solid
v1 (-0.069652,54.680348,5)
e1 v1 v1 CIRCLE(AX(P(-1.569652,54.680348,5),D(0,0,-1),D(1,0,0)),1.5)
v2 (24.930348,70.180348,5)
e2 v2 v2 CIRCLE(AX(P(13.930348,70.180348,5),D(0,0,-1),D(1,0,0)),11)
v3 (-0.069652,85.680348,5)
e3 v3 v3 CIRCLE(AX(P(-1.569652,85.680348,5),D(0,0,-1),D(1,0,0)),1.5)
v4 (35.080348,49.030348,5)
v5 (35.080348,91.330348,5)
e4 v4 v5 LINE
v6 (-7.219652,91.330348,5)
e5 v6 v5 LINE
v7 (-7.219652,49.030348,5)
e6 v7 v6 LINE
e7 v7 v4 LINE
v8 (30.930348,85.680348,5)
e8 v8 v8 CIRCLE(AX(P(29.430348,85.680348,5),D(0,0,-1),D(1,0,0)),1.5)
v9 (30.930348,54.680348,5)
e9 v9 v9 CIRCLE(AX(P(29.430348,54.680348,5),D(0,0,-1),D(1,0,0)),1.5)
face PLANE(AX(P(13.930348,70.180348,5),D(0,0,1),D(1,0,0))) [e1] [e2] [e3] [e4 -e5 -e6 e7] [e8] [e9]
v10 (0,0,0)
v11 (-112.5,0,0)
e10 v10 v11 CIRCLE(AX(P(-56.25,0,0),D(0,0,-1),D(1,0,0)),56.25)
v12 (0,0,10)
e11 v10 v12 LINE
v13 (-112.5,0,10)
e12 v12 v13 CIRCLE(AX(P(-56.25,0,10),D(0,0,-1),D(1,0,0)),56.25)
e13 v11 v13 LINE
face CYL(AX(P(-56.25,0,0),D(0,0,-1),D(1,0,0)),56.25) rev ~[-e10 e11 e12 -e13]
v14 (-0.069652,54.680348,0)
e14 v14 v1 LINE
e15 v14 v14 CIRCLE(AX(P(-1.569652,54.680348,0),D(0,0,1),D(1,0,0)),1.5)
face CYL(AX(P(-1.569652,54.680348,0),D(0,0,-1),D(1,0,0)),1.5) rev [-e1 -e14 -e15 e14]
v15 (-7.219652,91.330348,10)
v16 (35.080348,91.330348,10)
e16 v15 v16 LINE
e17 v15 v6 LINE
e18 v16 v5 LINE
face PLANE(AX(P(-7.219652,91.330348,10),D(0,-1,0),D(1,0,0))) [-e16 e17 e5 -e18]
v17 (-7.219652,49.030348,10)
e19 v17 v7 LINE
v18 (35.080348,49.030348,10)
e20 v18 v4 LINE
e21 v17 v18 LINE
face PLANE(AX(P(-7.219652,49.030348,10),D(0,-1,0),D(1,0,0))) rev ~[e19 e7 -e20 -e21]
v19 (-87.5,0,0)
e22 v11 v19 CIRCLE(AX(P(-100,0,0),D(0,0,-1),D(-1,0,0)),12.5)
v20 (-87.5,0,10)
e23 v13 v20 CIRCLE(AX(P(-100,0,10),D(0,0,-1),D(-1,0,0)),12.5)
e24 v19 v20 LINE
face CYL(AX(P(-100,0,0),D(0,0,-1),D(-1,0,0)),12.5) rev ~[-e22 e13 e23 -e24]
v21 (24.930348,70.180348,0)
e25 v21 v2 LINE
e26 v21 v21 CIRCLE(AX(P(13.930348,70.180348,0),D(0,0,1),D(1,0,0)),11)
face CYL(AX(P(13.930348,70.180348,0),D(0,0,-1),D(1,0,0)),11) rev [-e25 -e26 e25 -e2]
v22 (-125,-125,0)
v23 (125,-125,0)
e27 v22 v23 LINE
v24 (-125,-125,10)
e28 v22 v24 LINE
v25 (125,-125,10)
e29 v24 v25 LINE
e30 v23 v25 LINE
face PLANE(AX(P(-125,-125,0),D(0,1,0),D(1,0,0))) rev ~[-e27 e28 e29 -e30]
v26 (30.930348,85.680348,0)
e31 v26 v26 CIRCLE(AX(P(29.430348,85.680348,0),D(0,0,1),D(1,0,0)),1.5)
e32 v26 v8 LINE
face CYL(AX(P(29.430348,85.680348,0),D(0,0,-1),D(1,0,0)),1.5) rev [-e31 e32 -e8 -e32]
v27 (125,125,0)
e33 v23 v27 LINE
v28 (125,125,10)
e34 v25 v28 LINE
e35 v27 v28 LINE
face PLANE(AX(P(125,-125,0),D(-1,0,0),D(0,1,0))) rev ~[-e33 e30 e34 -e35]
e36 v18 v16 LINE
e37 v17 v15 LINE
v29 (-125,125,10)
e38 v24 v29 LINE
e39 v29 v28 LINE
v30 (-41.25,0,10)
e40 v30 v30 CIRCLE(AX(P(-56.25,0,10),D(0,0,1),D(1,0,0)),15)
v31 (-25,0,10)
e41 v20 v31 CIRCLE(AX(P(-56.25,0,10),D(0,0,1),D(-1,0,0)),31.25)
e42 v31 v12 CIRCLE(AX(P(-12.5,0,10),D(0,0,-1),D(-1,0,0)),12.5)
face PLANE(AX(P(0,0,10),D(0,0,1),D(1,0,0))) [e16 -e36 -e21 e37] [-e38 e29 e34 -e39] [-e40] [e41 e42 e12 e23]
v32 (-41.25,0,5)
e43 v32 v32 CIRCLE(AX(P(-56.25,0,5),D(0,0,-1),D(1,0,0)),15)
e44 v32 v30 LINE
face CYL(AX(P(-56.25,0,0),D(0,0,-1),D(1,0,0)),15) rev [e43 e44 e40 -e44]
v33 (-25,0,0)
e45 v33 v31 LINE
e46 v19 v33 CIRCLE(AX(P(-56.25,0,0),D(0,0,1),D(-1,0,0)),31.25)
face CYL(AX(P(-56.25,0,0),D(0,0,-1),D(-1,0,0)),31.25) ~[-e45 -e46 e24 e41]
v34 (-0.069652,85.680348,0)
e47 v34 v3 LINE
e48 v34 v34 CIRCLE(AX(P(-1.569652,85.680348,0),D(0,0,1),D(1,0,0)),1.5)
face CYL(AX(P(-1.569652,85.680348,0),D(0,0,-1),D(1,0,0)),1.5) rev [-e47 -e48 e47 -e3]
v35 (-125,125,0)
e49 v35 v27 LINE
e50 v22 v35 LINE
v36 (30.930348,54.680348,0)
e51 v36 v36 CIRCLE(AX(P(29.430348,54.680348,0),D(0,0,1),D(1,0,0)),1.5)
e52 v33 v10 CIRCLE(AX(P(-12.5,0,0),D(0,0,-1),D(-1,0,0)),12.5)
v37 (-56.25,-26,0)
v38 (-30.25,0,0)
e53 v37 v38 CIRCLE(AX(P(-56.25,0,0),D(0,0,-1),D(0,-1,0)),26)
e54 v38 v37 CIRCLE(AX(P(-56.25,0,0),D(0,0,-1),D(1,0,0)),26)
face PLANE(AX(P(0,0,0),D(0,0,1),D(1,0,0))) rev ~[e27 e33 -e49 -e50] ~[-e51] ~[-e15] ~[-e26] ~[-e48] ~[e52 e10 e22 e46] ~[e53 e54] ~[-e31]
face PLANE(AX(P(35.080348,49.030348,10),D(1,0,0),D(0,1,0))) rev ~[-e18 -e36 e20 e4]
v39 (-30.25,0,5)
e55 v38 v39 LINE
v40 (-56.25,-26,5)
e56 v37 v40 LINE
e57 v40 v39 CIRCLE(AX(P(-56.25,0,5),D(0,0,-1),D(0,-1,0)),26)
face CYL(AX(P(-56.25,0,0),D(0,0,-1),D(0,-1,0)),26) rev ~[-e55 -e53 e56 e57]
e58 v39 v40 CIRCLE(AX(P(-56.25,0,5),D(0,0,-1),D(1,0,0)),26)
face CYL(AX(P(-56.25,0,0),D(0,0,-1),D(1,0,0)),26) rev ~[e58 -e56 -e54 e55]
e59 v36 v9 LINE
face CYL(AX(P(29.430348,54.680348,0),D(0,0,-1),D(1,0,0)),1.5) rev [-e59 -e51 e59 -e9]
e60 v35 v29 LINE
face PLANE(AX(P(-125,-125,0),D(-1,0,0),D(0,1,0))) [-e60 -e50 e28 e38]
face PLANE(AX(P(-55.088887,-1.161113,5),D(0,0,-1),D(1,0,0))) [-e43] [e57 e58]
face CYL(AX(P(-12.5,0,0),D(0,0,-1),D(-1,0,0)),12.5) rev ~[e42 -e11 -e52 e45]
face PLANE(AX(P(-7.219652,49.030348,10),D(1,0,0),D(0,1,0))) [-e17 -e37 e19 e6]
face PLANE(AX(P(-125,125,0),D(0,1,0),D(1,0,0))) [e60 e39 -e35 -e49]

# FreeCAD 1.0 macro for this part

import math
import FreeCAD as App
import Part
import Sketcher
from FreeCAD import Vector

doc = App.newDocument("Part")
body = doc.addObject("PartDesign::Body", "Body")

# Sketch on XY plane
sketch1 = body.newObject("Sketcher::SketchObject", "Sketch")
sketch1.AttachmentSupport = (doc.getObject("XY_Plane"), [""])
sketch1.MapMode = "FlatFace"
sketch1.addGeometry([
    Part.LineSegment(Vector(-125, 125, 0), Vector(-125, -125, 0)),  # 0
    Part.LineSegment(Vector(-125, -125, 0), Vector(125, -125, 0)),  # 1
    Part.LineSegment(Vector(125, -125, 0), Vector(125, 125, 0)),  # 2
    Part.LineSegment(Vector(125, 125, 0), Vector(-125, 125, 0)),  # 3
    Part.ArcOfCircle(Part.Circle(Vector(-12.5, 0, 0), Vector(0, 0, 1), 12.5), math.radians(0), math.radians(180)),  # 4
    Part.ArcOfCircle(Part.Circle(Vector(-56.2, 0, 0), Vector(0, 0, 1), 56.2), math.radians(180), math.radians(360)),  # 5
    Part.ArcOfCircle(Part.Circle(Vector(-100, 0, 0), Vector(0, 0, 1), 12.5), math.radians(0), math.radians(180)),  # 6
    Part.ArcOfCircle(Part.Circle(Vector(-56.2, 0, 0), Vector(0, 0, 1), 31.2), math.radians(180), math.radians(360)),  # 7
    Part.Circle(Vector(-56.2, 0, 0), Vector(0, 0, 1), 15),  # 8
    Part.Circle(Vector(-1.6, 54.7, 0), Vector(0, 0, 1), 1.5),  # 9
    Part.Circle(Vector(29.4, 54.7, 0), Vector(0, 0, 1), 1.5),  # 10
    Part.Circle(Vector(-1.6, 85.7, 0), Vector(0, 0, 1), 1.5),  # 11
    Part.Circle(Vector(13.9, 70.2, 0), Vector(0, 0, 1), 11),  # 12
    Part.Circle(Vector(29.4, 85.7, 0), Vector(0, 0, 1), 1.5),  # 13
], False)
sketch1.addConstraint([
    Sketcher.Constraint("Coincident", 0, 2, 1, 1),
    Sketcher.Constraint("Coincident", 1, 2, 2, 1),
    Sketcher.Constraint("Coincident", 2, 2, 3, 1),
    Sketcher.Constraint("Coincident", 3, 2, 0, 1),
    Sketcher.Constraint("Tangent", 4, 1, 5, 2),
    Sketcher.Constraint("Tangent", 5, 1, 6, 2),
    Sketcher.Constraint("Tangent", 6, 1, 7, 1),
    Sketcher.Constraint("Tangent", 7, 2, 4, 2),
    Sketcher.Constraint("Vertical", 0),
    Sketcher.Constraint("Horizontal", 1),
    Sketcher.Constraint("Vertical", 2),
    Sketcher.Constraint("Horizontal", 3),
    Sketcher.Constraint("Coincident", 4, 1, -1, 1),
    Sketcher.Constraint("Coincident", 7, 3, 5, 3),
    Sketcher.Constraint("Coincident", 8, 3, 5, 3),
    Sketcher.Constraint("Equal", 9, 10),
    Sketcher.Constraint("Equal", 10, 11),
    Sketcher.Constraint("Equal", 11, 13),
    Sketcher.Constraint("Symmetric", 0, 2, 2, 2, -1, 1),
    Sketcher.Constraint("PointOnObject", 4, 3, -1),
    Sketcher.Constraint("PointOnObject", 6, 3, -1),
    Sketcher.Constraint("Horizontal", 9, 3, 10, 3),
    Sketcher.Constraint("Horizontal", 11, 3, 13, 3),
    Sketcher.Constraint("Vertical", 9, 3, 11, 3),
    Sketcher.Constraint("Vertical", 10, 3, 13, 3),
    Sketcher.Constraint("Equal", 3, 0),
    Sketcher.Constraint("Diameter", 8, 30.0),
    Sketcher.Constraint("Diameter", 9, 3.0),
    Sketcher.Constraint("Diameter", 12, 22.0),
    Sketcher.Constraint("Radius", 4, 12.5),
    Sketcher.Constraint("DistanceX", 1, 1, 1, 2, 250.0),
    Sketcher.Constraint("Radius", 5, 56.25),
    Sketcher.Constraint("DistanceX", 9, 3, 10, 3, 31.0),
    Sketcher.Constraint("DistanceY", 9, 3, 11, 3, 31.0),
    Sketcher.Constraint("DistanceX", 9, 3, 12, 3, 15.5),
    Sketcher.Constraint("DistanceY", 9, 3, 12, 3, 15.5),
    Sketcher.Constraint("DistanceX", 9, 3, -1, 1, 1.569652),
    Sketcher.Constraint("DistanceY", -1, 1, 9, 3, 54.680348),
])
pad1 = body.newObject("PartDesign::Pad", "Pad")
pad1.Profile = sketch1
pad1.Length = 10

# Sketch on XY plane
sketch2 = body.newObject("Sketcher::SketchObject", "Sketch001")
sketch2.AttachmentSupport = (doc.getObject("XY_Plane"), [""])
sketch2.MapMode = "FlatFace"
sketch2.AttachmentOffset = App.Placement(Vector(0, 0, 10), App.Rotation())
sketch2.addGeometry([
    Part.LineSegment(Vector(-7, 91, 0), Vector(-7, 49, 0)),
    Part.LineSegment(Vector(-7, 49, 0), Vector(35, 49, 0)),
    Part.LineSegment(Vector(35, 49, 0), Vector(35, 91, 0)),
    Part.LineSegment(Vector(35, 91, 0), Vector(-7, 91, 0)),
], False)
sketch2.addConstraint([
    Sketcher.Constraint("Coincident", 0, 2, 1, 1),
    Sketcher.Constraint("Coincident", 1, 2, 2, 1),
    Sketcher.Constraint("Coincident", 2, 2, 3, 1),
    Sketcher.Constraint("Coincident", 3, 2, 0, 1),
    Sketcher.Constraint("Vertical", 0),
    Sketcher.Constraint("Horizontal", 1),
    Sketcher.Constraint("Vertical", 2),
    Sketcher.Constraint("Horizontal", 3),
    Sketcher.Constraint("Equal", 3, 0),
    Sketcher.Constraint("DistanceX", 1, 1, 1, 2, 42.3),
    Sketcher.Constraint("DistanceX", 0, 2, -1, 1, 7.219652),
    Sketcher.Constraint("DistanceY", -1, 1, 0, 2, 49.030348),
])
pocket1 = body.newObject("PartDesign::Pocket", "Pocket")
pocket1.Profile = sketch2
pocket1.Length = 5

# Sketch on XY plane
sketch3 = body.newObject("Sketcher::SketchObject", "Sketch002")
sketch3.AttachmentSupport = (doc.getObject("XY_Plane"), [""])
sketch3.MapMode = "FlatFace"
sketch3.addGeometry([
    Part.ArcOfCircle(Part.Circle(Vector(-56, 0, 0), Vector(0, 0, 1), 26), math.radians(-90), math.radians(0)),
    Part.ArcOfCircle(Part.Circle(Vector(-56, 0, 0), Vector(0, 0, 1), 26), math.radians(0), math.radians(270)),
    Part.Circle(Vector(-56, 0, 0), Vector(0, 0, 1), 15),
], False)
sketch3.addConstraint([
    Sketcher.Constraint("Tangent", 0, 1, 1, 2),
    Sketcher.Constraint("Coincident", 1, 1, 0, 2),
    Sketcher.Constraint("Coincident", 2, 3, 0, 3),
    Sketcher.Constraint("PointOnObject", 0, 3, -1),
    Sketcher.Constraint("PointOnObject", 1, 1, -1),
    Sketcher.Constraint("Vertical", 2, 3, 0, 1),
    Sketcher.Constraint("Diameter", 2, 30.0),
    Sketcher.Constraint("Radius", 0, 26.0),
    Sketcher.Constraint("DistanceX", 0, 3, -1, 1, 56.25),
])
pocket2 = body.newObject("PartDesign::Pocket", "Pocket001")
pocket2.Profile = sketch3
pocket2.Length = 5
pocket2.Reversed = True
body2 = doc.addObject("PartDesign::Body", "Body001")
doc.recompute()

body2.BaseFeature = body
doc.recompute()
body.Visibility = False

doc.recompute()
